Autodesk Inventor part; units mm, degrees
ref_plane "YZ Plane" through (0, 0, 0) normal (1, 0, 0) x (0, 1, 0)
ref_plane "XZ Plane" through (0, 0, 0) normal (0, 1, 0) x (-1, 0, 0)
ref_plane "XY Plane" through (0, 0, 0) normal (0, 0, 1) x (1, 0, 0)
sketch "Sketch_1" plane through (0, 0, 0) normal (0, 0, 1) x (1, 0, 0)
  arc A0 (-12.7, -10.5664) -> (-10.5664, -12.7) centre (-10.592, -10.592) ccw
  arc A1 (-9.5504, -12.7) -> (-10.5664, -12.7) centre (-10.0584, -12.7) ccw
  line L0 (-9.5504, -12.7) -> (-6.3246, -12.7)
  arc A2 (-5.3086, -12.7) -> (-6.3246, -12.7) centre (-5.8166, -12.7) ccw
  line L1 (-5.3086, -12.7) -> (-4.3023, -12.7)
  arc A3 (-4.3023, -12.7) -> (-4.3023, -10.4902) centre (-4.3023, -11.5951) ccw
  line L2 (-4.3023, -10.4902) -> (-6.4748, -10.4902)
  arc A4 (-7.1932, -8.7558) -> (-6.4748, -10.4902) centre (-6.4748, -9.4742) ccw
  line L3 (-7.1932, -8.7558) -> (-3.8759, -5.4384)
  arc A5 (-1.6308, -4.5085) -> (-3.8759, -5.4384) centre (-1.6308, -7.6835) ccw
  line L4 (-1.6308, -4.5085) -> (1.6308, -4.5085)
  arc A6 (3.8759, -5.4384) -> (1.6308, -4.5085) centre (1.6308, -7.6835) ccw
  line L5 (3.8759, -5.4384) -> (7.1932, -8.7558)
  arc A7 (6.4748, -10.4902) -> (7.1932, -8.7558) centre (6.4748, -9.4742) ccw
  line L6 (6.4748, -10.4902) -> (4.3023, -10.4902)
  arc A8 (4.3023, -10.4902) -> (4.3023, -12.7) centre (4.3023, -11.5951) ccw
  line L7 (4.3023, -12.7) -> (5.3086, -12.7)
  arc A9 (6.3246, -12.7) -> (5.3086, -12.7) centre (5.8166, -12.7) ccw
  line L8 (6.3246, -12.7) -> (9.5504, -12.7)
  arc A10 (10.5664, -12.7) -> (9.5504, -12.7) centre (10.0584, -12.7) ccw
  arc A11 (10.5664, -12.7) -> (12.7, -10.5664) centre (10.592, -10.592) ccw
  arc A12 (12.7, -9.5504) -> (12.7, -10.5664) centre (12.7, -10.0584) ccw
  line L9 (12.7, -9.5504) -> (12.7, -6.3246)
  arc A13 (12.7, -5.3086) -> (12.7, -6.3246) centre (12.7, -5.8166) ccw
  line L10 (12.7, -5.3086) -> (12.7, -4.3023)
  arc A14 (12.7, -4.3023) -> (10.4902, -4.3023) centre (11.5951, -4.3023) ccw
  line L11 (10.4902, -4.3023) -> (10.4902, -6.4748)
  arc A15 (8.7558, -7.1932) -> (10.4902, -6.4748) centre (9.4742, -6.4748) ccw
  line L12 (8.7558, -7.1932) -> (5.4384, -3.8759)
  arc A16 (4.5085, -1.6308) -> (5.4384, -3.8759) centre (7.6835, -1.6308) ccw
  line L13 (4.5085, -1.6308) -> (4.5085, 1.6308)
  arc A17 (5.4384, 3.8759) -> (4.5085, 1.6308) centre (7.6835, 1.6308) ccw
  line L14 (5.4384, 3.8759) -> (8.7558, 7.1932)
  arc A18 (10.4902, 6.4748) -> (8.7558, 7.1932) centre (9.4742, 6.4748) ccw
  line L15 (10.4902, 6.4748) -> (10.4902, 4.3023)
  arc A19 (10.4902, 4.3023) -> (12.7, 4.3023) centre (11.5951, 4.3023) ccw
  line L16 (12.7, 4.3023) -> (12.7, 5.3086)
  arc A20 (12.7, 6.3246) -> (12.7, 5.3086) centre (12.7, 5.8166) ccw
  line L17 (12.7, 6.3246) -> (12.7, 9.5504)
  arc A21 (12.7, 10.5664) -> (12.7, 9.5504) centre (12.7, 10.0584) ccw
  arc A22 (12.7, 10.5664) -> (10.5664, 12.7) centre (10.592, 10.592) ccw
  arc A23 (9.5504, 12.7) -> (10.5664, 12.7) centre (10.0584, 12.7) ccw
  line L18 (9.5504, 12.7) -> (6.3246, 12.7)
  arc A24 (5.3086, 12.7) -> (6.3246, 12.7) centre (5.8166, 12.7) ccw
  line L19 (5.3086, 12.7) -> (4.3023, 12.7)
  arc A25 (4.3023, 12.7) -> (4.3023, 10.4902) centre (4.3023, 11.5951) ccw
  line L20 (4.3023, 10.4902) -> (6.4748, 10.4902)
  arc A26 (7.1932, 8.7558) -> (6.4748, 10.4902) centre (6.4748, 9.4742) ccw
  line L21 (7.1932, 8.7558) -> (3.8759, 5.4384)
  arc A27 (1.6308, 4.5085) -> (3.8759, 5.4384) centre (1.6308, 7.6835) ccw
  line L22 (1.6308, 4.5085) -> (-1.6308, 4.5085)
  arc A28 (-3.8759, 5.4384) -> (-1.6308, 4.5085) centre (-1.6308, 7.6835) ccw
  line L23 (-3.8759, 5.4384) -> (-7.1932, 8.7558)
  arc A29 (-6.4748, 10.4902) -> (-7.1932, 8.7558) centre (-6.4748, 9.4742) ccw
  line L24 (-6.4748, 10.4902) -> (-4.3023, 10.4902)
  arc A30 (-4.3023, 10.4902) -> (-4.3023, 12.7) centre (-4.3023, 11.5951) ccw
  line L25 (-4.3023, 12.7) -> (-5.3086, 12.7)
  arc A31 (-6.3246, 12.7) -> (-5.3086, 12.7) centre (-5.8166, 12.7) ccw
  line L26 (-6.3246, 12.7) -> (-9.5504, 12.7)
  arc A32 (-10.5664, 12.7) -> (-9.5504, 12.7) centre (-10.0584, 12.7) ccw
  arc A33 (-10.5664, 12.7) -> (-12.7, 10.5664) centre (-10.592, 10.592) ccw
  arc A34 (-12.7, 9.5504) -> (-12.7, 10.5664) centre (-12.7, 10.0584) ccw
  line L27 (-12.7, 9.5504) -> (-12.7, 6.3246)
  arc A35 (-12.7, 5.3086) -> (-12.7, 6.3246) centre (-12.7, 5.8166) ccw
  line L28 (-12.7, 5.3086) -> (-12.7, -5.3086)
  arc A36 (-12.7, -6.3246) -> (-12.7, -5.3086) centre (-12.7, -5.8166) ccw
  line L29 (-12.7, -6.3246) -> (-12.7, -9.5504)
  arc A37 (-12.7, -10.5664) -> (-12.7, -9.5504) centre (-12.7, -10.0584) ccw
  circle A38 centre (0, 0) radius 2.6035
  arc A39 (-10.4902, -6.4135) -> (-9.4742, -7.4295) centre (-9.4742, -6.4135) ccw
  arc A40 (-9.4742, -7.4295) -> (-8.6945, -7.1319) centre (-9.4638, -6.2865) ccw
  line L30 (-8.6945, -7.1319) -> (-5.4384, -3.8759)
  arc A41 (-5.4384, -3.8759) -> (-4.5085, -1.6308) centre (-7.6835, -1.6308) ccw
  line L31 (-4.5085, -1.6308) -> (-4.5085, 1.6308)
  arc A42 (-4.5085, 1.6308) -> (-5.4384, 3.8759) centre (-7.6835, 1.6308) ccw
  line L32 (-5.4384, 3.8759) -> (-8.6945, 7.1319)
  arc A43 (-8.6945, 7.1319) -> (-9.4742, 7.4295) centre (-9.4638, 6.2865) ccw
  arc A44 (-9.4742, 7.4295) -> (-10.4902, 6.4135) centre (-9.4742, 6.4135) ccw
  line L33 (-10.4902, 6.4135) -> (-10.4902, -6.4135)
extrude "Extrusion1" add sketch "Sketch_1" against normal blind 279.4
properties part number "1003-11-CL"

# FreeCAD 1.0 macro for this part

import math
import FreeCAD as App
import Part
import Sketcher

V = App.Vector
Q = App.Units.Quantity

doc = App.newDocument("Part")
body = doc.addObject("PartDesign::Body", "Body")

# Sketch on XY plane
sketch1 = body.newObject("Sketcher::SketchObject", "Sketch")
sketch1.AttachmentSupport = (doc.getObject("XY_Plane"), [""])
sketch1.MapMode = "FlatFace"
sketch1.addGeometry([
    Part.ArcOfCircle(Part.Circle(V(-12.7, -10.1, 0), V(0, 0, 1), 0.5), math.radians(-90), math.radians(90)),  # 0
    Part.ArcOfCircle(Part.Circle(V(-10.6, -10.6, 0), V(0, 0, 1), 2.1), math.radians(179), math.radians(271)),  # 1
    Part.ArcOfCircle(Part.Circle(V(-10.1, -12.7, 0), V(0, 0, 1), 0.5), math.radians(0), math.radians(180)),  # 2
    Part.LineSegment(V(-9.6, -12.7, 0), V(-6.3, -12.7, 0)),  # 3
    Part.ArcOfCircle(Part.Circle(V(-5.8, -12.7, 0), V(0, 0, 1), 0.5), math.radians(0), math.radians(180)),  # 4
    Part.LineSegment(V(-5.3, -12.7, 0), V(-4.3, -12.7, 0)),  # 5
    Part.ArcOfCircle(Part.Circle(V(-4.3, -11.6, 0), V(0, 0, 1), 1.1), math.radians(-90), math.radians(90)),  # 6
    Part.LineSegment(V(-4.3, -10.5, 0), V(-6.5, -10.5, 0)),  # 7
    Part.ArcOfCircle(Part.Circle(V(-6.5, -9.5, 0), V(0, 0, 1), 1), math.radians(135), math.radians(270)),  # 8
    Part.LineSegment(V(-7.2, -8.8, 0), V(-3.9, -5.4, 0)),  # 9
    Part.ArcOfCircle(Part.Circle(V(-1.6, -7.7, 0), V(0, 0, 1), 3.2), math.radians(90), math.radians(135)),  # 10
    Part.LineSegment(V(-1.6, -4.5, 0), V(1.6, -4.5, 0)),  # 11
    Part.ArcOfCircle(Part.Circle(V(1.6, -7.7, 0), V(0, 0, 1), 3.2), math.radians(45), math.radians(90)),  # 12
    Part.LineSegment(V(3.9, -5.4, 0), V(7.2, -8.8, 0)),  # 13
    Part.ArcOfCircle(Part.Circle(V(6.5, -9.5, 0), V(0, 0, 1), 1), math.radians(-90), math.radians(45)),  # 14
    Part.LineSegment(V(6.5, -10.5, 0), V(4.3, -10.5, 0)),  # 15
    Part.ArcOfCircle(Part.Circle(V(4.3, -11.6, 0), V(0, 0, 1), 1.1), math.radians(90), math.radians(270)),  # 16
    Part.LineSegment(V(4.3, -12.7, 0), V(5.3, -12.7, 0)),  # 17
    Part.ArcOfCircle(Part.Circle(V(5.8, -12.7, 0), V(0, 0, 1), 0.5), math.radians(0), math.radians(180)),  # 18
    Part.LineSegment(V(6.3, -12.7, 0), V(9.6, -12.7, 0)),  # 19
    Part.ArcOfCircle(Part.Circle(V(10.1, -12.7, 0), V(0, 0, 1), 0.5), math.radians(0), math.radians(180)),  # 20
    Part.ArcOfCircle(Part.Circle(V(10.6, -10.6, 0), V(0, 0, 1), 2.1), math.radians(-91), math.radians(1)),  # 21
    Part.ArcOfCircle(Part.Circle(V(12.7, -10.1, 0), V(0, 0, 1), 0.5), math.radians(90), math.radians(270)),  # 22
    Part.LineSegment(V(12.7, -9.6, 0), V(12.7, -6.3, 0)),  # 23
    Part.ArcOfCircle(Part.Circle(V(12.7, -5.8, 0), V(0, 0, 1), 0.5), math.radians(90), math.radians(270)),  # 24
    Part.LineSegment(V(12.7, -5.3, 0), V(12.7, -4.3, 0)),  # 25
    Part.ArcOfCircle(Part.Circle(V(11.6, -4.3, 0), V(0, 0, 1), 1.1), math.radians(0), math.radians(180)),  # 26
    Part.LineSegment(V(10.5, -4.3, 0), V(10.5, -6.5, 0)),  # 27
    Part.ArcOfCircle(Part.Circle(V(9.5, -6.5, 0), V(0, 0, 1), 1), math.radians(-135), math.radians(0)),  # 28
    Part.LineSegment(V(8.8, -7.2, 0), V(5.4, -3.9, 0)),  # 29
    Part.ArcOfCircle(Part.Circle(V(7.7, -1.6, 0), V(0, 0, 1), 3.2), math.radians(180), math.radians(225)),  # 30
    Part.LineSegment(V(4.5, -1.6, 0), V(4.5, 1.6, 0)),  # 31
    Part.ArcOfCircle(Part.Circle(V(7.7, 1.6, 0), V(0, 0, 1), 3.2), math.radians(135), math.radians(180)),  # 32
    Part.LineSegment(V(5.4, 3.9, 0), V(8.8, 7.2, 0)),  # 33
    Part.ArcOfCircle(Part.Circle(V(9.5, 6.5, 0), V(0, 0, 1), 1), math.radians(0), math.radians(135)),  # 34
    Part.LineSegment(V(10.5, 6.5, 0), V(10.5, 4.3, 0)),  # 35
    Part.ArcOfCircle(Part.Circle(V(11.6, 4.3, 0), V(0, 0, 1), 1.1), math.radians(180), math.radians(360)),  # 36
    Part.LineSegment(V(12.7, 4.3, 0), V(12.7, 5.3, 0)),  # 37
    Part.ArcOfCircle(Part.Circle(V(12.7, 5.8, 0), V(0, 0, 1), 0.5), math.radians(90), math.radians(270)),  # 38
    Part.LineSegment(V(12.7, 6.3, 0), V(12.7, 9.6, 0)),  # 39
    Part.ArcOfCircle(Part.Circle(V(12.7, 10.1, 0), V(0, 0, 1), 0.5), math.radians(90), math.radians(270)),  # 40
    Part.ArcOfCircle(Part.Circle(V(10.6, 10.6, 0), V(0, 0, 1), 2.1), math.radians(-1), math.radians(91)),  # 41
    Part.ArcOfCircle(Part.Circle(V(10.1, 12.7, 0), V(0, 0, 1), 0.5), math.radians(180), math.radians(360)),  # 42
    Part.LineSegment(V(9.6, 12.7, 0), V(6.3, 12.7, 0)),  # 43
    Part.ArcOfCircle(Part.Circle(V(5.8, 12.7, 0), V(0, 0, 1), 0.5), math.radians(180), math.radians(360)),  # 44
    Part.LineSegment(V(5.3, 12.7, 0), V(4.3, 12.7, 0)),  # 45
    Part.ArcOfCircle(Part.Circle(V(4.3, 11.6, 0), V(0, 0, 1), 1.1), math.radians(90), math.radians(270)),  # 46
    Part.LineSegment(V(4.3, 10.5, 0), V(6.5, 10.5, 0)),  # 47
    Part.ArcOfCircle(Part.Circle(V(6.5, 9.5, 0), V(0, 0, 1), 1), math.radians(-45), math.radians(90)),  # 48
    Part.LineSegment(V(7.2, 8.8, 0), V(3.9, 5.4, 0)),  # 49
    Part.ArcOfCircle(Part.Circle(V(1.6, 7.7, 0), V(0, 0, 1), 3.2), math.radians(-90), math.radians(-45)),  # 50
    Part.LineSegment(V(1.6, 4.5, 0), V(-1.6, 4.5, 0)),  # 51
    Part.ArcOfCircle(Part.Circle(V(-1.6, 7.7, 0), V(0, 0, 1), 3.2), math.radians(-135), math.radians(-90)),  # 52
    Part.LineSegment(V(-3.9, 5.4, 0), V(-7.2, 8.8, 0)),  # 53
    Part.ArcOfCircle(Part.Circle(V(-6.5, 9.5, 0), V(0, 0, 1), 1), math.radians(90), math.radians(225)),  # 54
    Part.LineSegment(V(-6.5, 10.5, 0), V(-4.3, 10.5, 0)),  # 55
    Part.ArcOfCircle(Part.Circle(V(-4.3, 11.6, 0), V(0, 0, 1), 1.1), math.radians(-90), math.radians(90)),  # 56
    Part.LineSegment(V(-4.3, 12.7, 0), V(-5.3, 12.7, 0)),  # 57
    Part.ArcOfCircle(Part.Circle(V(-5.8, 12.7, 0), V(0, 0, 1), 0.5), math.radians(180), math.radians(360)),  # 58
    Part.LineSegment(V(-6.3, 12.7, 0), V(-9.6, 12.7, 0)),  # 59
    Part.ArcOfCircle(Part.Circle(V(-10.1, 12.7, 0), V(0, 0, 1), 0.5), math.radians(180), math.radians(360)),  # 60
    Part.ArcOfCircle(Part.Circle(V(-10.6, 10.6, 0), V(0, 0, 1), 2.1), math.radians(89), math.radians(181)),  # 61
    Part.ArcOfCircle(Part.Circle(V(-12.7, 10.1, 0), V(0, 0, 1), 0.5), math.radians(-90), math.radians(90)),  # 62
    Part.LineSegment(V(-12.7, 9.6, 0), V(-12.7, 6.3, 0)),  # 63
    Part.ArcOfCircle(Part.Circle(V(-12.7, 5.8, 0), V(0, 0, 1), 0.5), math.radians(-90), math.radians(90)),  # 64
    Part.LineSegment(V(-12.7, 5.3, 0), V(-12.7, -5.3, 0)),  # 65
    Part.ArcOfCircle(Part.Circle(V(-12.7, -5.8, 0), V(0, 0, 1), 0.5), math.radians(-90), math.radians(90)),  # 66
    Part.LineSegment(V(-12.7, -6.3, 0), V(-12.7, -9.6, 0)),  # 67
    Part.ArcOfCircle(Part.Circle(V(-9.5, -6.4, 0), V(0, 0, 1), 1), math.radians(180), math.radians(270)),  # 68
    Part.LineSegment(V(-10.5, -6.4, 0), V(-10.5, 6.4, 0)),  # 69
    Part.ArcOfCircle(Part.Circle(V(-9.5, 6.4, 0), V(0, 0, 1), 1), math.radians(90), math.radians(180)),  # 70
    Part.ArcOfCircle(Part.Circle(V(-9.5, 6.3, 0), V(0, 0, 1), 1.1), math.radians(48), math.radians(91)),  # 71
    Part.LineSegment(V(-8.7, 7.1, 0), V(-5.4, 3.9, 0)),  # 72
    Part.ArcOfCircle(Part.Circle(V(-7.7, 1.6, 0), V(0, 0, 1), 3.2), math.radians(0), math.radians(45)),  # 73
    Part.LineSegment(V(-4.5, 1.6, 0), V(-4.5, -1.6, 0)),  # 74
    Part.ArcOfCircle(Part.Circle(V(-7.7, -1.6, 0), V(0, 0, 1), 3.2), math.radians(-45), math.radians(0)),  # 75
    Part.LineSegment(V(-5.4, -3.9, 0), V(-8.7, -7.1, 0)),  # 76
    Part.ArcOfCircle(Part.Circle(V(-9.5, -6.3, 0), V(0, 0, 1), 1.1), math.radians(-91), math.radians(-48)),  # 77
    Part.Circle(V(0, 0, 0), V(0, 0, 1), 2.6),  # 78
], False)
sketch1.addConstraint([
    Sketcher.Constraint("Coincident", 0, 1, 1, 1),
    Sketcher.Constraint("Coincident", 1, 2, 2, 2),
    Sketcher.Constraint("Coincident", 2, 1, 3, 1),
    Sketcher.Constraint("Coincident", 3, 2, 4, 2),
    Sketcher.Constraint("Coincident", 4, 1, 5, 1),
    Sketcher.Constraint("Tangent", 5, 2, 6, 1),
    Sketcher.Constraint("Tangent", 6, 2, 7, 1),
    Sketcher.Constraint("Tangent", 7, 2, 8, 2),
    Sketcher.Constraint("Tangent", 8, 1, 9, 1),
    Sketcher.Constraint("Tangent", 9, 2, 10, 2),
    Sketcher.Constraint("Tangent", 10, 1, 11, 1),
    Sketcher.Constraint("Tangent", 11, 2, 12, 2),
    Sketcher.Constraint("Tangent", 12, 1, 13, 1),
    Sketcher.Constraint("Tangent", 13, 2, 14, 2),
    Sketcher.Constraint("Tangent", 14, 1, 15, 1),
    Sketcher.Constraint("Tangent", 15, 2, 16, 1),
    Sketcher.Constraint("Tangent", 16, 2, 17, 1),
    Sketcher.Constraint("Coincident", 17, 2, 18, 2),
    Sketcher.Constraint("Coincident", 18, 1, 19, 1),
    Sketcher.Constraint("Coincident", 19, 2, 20, 2),
    Sketcher.Constraint("Coincident", 20, 1, 21, 1),
    Sketcher.Constraint("Coincident", 21, 2, 22, 2),
    Sketcher.Constraint("Coincident", 22, 1, 23, 1),
    Sketcher.Constraint("Coincident", 23, 2, 24, 2),
    Sketcher.Constraint("Coincident", 24, 1, 25, 1),
    Sketcher.Constraint("Tangent", 25, 2, 26, 1),
    Sketcher.Constraint("Tangent", 26, 2, 27, 1),
    Sketcher.Constraint("Tangent", 27, 2, 28, 2),
    Sketcher.Constraint("Tangent", 28, 1, 29, 1),
    Sketcher.Constraint("Tangent", 29, 2, 30, 2),
    Sketcher.Constraint("Tangent", 30, 1, 31, 1),
    Sketcher.Constraint("Tangent", 31, 2, 32, 2),
    Sketcher.Constraint("Tangent", 32, 1, 33, 1),
    Sketcher.Constraint("Tangent", 33, 2, 34, 2),
    Sketcher.Constraint("Tangent", 34, 1, 35, 1),
    Sketcher.Constraint("Tangent", 35, 2, 36, 1),
    Sketcher.Constraint("Tangent", 36, 2, 37, 1),
    Sketcher.Constraint("Coincident", 37, 2, 38, 2),
    Sketcher.Constraint("Coincident", 38, 1, 39, 1),
    Sketcher.Constraint("Coincident", 39, 2, 40, 2),
    Sketcher.Constraint("Coincident", 40, 1, 41, 1),
    Sketcher.Constraint("Coincident", 41, 2, 42, 2),
    Sketcher.Constraint("Coincident", 42, 1, 43, 1),
    Sketcher.Constraint("Coincident", 43, 2, 44, 2),
    Sketcher.Constraint("Coincident", 44, 1, 45, 1),
    Sketcher.Constraint("Tangent", 45, 2, 46, 1),
    Sketcher.Constraint("Tangent", 46, 2, 47, 1),
    Sketcher.Constraint("Tangent", 47, 2, 48, 2),
    Sketcher.Constraint("Tangent", 48, 1, 49, 1),
    Sketcher.Constraint("Tangent", 49, 2, 50, 2),
    Sketcher.Constraint("Tangent", 50, 1, 51, 1),
    Sketcher.Constraint("Tangent", 51, 2, 52, 2),
    Sketcher.Constraint("Tangent", 52, 1, 53, 1),
    Sketcher.Constraint("Tangent", 53, 2, 54, 2),
    Sketcher.Constraint("Tangent", 54, 1, 55, 1),
    Sketcher.Constraint("Tangent", 55, 2, 56, 1),
    Sketcher.Constraint("Tangent", 56, 2, 57, 1),
    Sketcher.Constraint("Coincident", 57, 2, 58, 2),
    Sketcher.Constraint("Coincident", 58, 1, 59, 1),
    Sketcher.Constraint("Coincident", 59, 2, 60, 2),
    Sketcher.Constraint("Coincident", 60, 1, 61, 1),
    Sketcher.Constraint("Coincident", 61, 2, 62, 2),
    Sketcher.Constraint("Coincident", 62, 1, 63, 1),
    Sketcher.Constraint("Coincident", 63, 2, 64, 2),
    Sketcher.Constraint("Coincident", 64, 1, 65, 1),
    Sketcher.Constraint("Coincident", 65, 2, 66, 2),
    Sketcher.Constraint("Coincident", 66, 1, 67, 1),
    Sketcher.Constraint("Coincident", 67, 2, 0, 2),
    Sketcher.Constraint("Tangent", 68, 1, 69, 1),
    Sketcher.Constraint("Tangent", 69, 2, 70, 2),
    Sketcher.Constraint("Coincident", 70, 1, 71, 2),
    Sketcher.Constraint("Coincident", 71, 1, 72, 1),
    Sketcher.Constraint("Tangent", 72, 2, 73, 2),
    Sketcher.Constraint("Tangent", 73, 1, 74, 1),
    Sketcher.Constraint("Tangent", 74, 2, 75, 2),
    Sketcher.Constraint("Tangent", 75, 1, 76, 1),
    Sketcher.Constraint("Coincident", 76, 2, 77, 2),
    Sketcher.Constraint("Coincident", 77, 1, 68, 2),
    Sketcher.Constraint("Horizontal", 3),
    Sketcher.Constraint("Horizontal", 5),
    Sketcher.Constraint("Horizontal", 7),
    Sketcher.Constraint("Horizontal", 11),
    Sketcher.Constraint("Horizontal", 15),
    Sketcher.Constraint("Horizontal", 17),
    Sketcher.Constraint("Horizontal", 19),
    Sketcher.Constraint("Vertical", 23),
    Sketcher.Constraint("Vertical", 25),
    Sketcher.Constraint("Vertical", 27),
    Sketcher.Constraint("Vertical", 31),
    Sketcher.Constraint("Vertical", 35),
    Sketcher.Constraint("Vertical", 37),
    Sketcher.Constraint("Vertical", 39),
    Sketcher.Constraint("Horizontal", 43),
    Sketcher.Constraint("Horizontal", 45),
    Sketcher.Constraint("Horizontal", 47),
    Sketcher.Constraint("Horizontal", 51),
    Sketcher.Constraint("Horizontal", 55),
    Sketcher.Constraint("Horizontal", 57),
    Sketcher.Constraint("Horizontal", 59),
    Sketcher.Constraint("Vertical", 63),
    Sketcher.Constraint("Vertical", 65),
    Sketcher.Constraint("Vertical", 67),
    Sketcher.Constraint("Vertical", 69),
    Sketcher.Constraint("Vertical", 74),
    Sketcher.Constraint("Coincident", 78, 3, -1, 1),
    Sketcher.Constraint("Equal", 0, 2),
    Sketcher.Constraint("Equal", 2, 4),
    Sketcher.Constraint("Equal", 10, 12),
    Sketcher.Constraint("Equal", 8, 14),
    Sketcher.Constraint("Equal", 6, 16),
    Sketcher.Constraint("Equal", 4, 18),
    Sketcher.Constraint("Equal", 18, 20),
    Sketcher.Constraint("Equal", 1, 21),
    Sketcher.Constraint("Equal", 20, 22),
    Sketcher.Constraint("Equal", 22, 24),
    Sketcher.Constraint("Equal", 16, 26),
    Sketcher.Constraint("Equal", 14, 28),
    Sketcher.Constraint("Equal", 12, 30),
    Sketcher.Constraint("Equal", 30, 32),
    Sketcher.Constraint("Equal", 28, 34),
    Sketcher.Constraint("Equal", 26, 36),
    Sketcher.Constraint("Equal", 24, 38),
    Sketcher.Constraint("Equal", 38, 40),
    Sketcher.Constraint("Equal", 21, 41),
    Sketcher.Constraint("Equal", 40, 42),
    Sketcher.Constraint("Equal", 42, 44),
    Sketcher.Constraint("Equal", 36, 46),
    Sketcher.Constraint("Equal", 34, 48),
    Sketcher.Constraint("Equal", 32, 50),
    Sketcher.Constraint("Equal", 50, 52),
    Sketcher.Constraint("Equal", 48, 54),
    Sketcher.Constraint("Equal", 46, 56),
    Sketcher.Constraint("Equal", 44, 58),
    Sketcher.Constraint("Equal", 58, 60),
    Sketcher.Constraint("Equal", 41, 61),
    Sketcher.Constraint("Equal", 60, 62),
    Sketcher.Constraint("Equal", 62, 64),
    Sketcher.Constraint("Equal", 64, 66),
    Sketcher.Constraint("Equal", 54, 68),
    Sketcher.Constraint("Equal", 68, 70),
    Sketcher.Constraint("Equal", 52, 73),
    Sketcher.Constraint("Equal", 73, 75),
    Sketcher.Constraint("Equal", 71, 77),
    Sketcher.Constraint("Symmetric", 0, 3, 40, 3, -1, 1),
    Sketcher.Constraint("Symmetric", 1, 3, 41, 3, -1, 1),
    Sketcher.Constraint("Symmetric", 2, 3, 42, 3, -1, 1),
    Sketcher.Constraint("Symmetric", 4, 3, 44, 3, -1, 1),
    Sketcher.Constraint("Symmetric", 6, 3, 46, 3, -1, 1),
    Sketcher.Constraint("Symmetric", 10, 3, 50, 3, -1, 1),
    Sketcher.Constraint("Symmetric", 14, 3, 54, 3, -1, 1),
    Sketcher.Constraint("Symmetric", 18, 3, 58, 3, -1, 1),
    Sketcher.Constraint("Symmetric", 20, 3, 60, 3, -1, 1),
    Sketcher.Constraint("Symmetric", 21, 3, 61, 3, -1, 1),
    Sketcher.Constraint("Symmetric", 22, 3, 62, 3, -1, 1),
    Sketcher.Constraint("Symmetric", 24, 3, 64, 3, -1, 1),
    Sketcher.Constraint("Symmetric", 38, 3, 66, 3, -1, 1),
    Sketcher.Constraint("Symmetric", 30, 3, 73, 3, -1, 1),
    Sketcher.Constraint("Symmetric", 32, 1, 75, 1, -1, 1),
    Sketcher.Constraint("Symmetric", 8, 3, 14, 3, -2),
    Sketcher.Constraint("Symmetric", 4, 3, 18, 3, -2),
    Sketcher.Constraint("Symmetric", 2, 3, 20, 3, -2),
    Sketcher.Constraint("Symmetric", 1, 3, 21, 3, -2),
    Sketcher.Constraint("Symmetric", 0, 3, 22, 3, -2),
    Sketcher.Constraint("Symmetric", 38, 3, 64, 3, -2),
    Sketcher.Constraint("Symmetric", 49, 2, 52, 1, -2),
    Sketcher.Constraint("Symmetric", 32, 1, 72, 2, -2),
    Sketcher.Constraint("Symmetric", 28, 3, 34, 3, -1),
    Sketcher.Constraint("Symmetric", 71, 3, 77, 3, -1),
    Sketcher.Constraint("Perpendicular", 9, 13),
    Sketcher.Constraint("Parallel", 13, 29),
    Sketcher.Constraint("Perpendicular", 29, 33),
    Sketcher.Constraint("Horizontal", 2, 3, 4, 3),
    Sketcher.Constraint("Horizontal", 20, 3, 1, 2),
    Sketcher.Constraint("Horizontal", 1, 2, 2, 1),
    Sketcher.Constraint("Horizontal", 3, 2, 4, 1),
    Sketcher.Constraint("Horizontal", 17, 2, 18, 1),
    Sketcher.Constraint("Horizontal", 41, 2, 42, 1),
    Sketcher.Constraint("Horizontal", 57, 2, 58, 1),
    Sketcher.Constraint("Vertical", 22, 3, 24, 3),
    Sketcher.Constraint("Vertical", 16, 3, 46, 3),
    Sketcher.Constraint("Vertical", 6, 3, 56, 3),
    Sketcher.Constraint("Vertical", 66, 3, 0, 1),
    Sketcher.Constraint("Vertical", 21, 2, 22, 1),
    Sketcher.Constraint("Vertical", 23, 2, 24, 1),
    Sketcher.Constraint("Vertical", 37, 2, 38, 1),
    Sketcher.Constraint("Vertical", 61, 2, 62, 1),
    Sketcher.Constraint("Vertical", 63, 2, 64, 1),
    Sketcher.Constraint("Vertical", 65, 2, 66, 1),
    Sketcher.Constraint("Vertical", 68, 3, 70, 1),
    Sketcher.Constraint("Vertical", 70, 1, 77, 1),
    Sketcher.Constraint("Equal", 59, 23),
    Sketcher.Constraint("Equal", 57, 25),
    Sketcher.Constraint("Equal", 55, 27),
    Sketcher.Constraint("Equal", 51, 31),
    Sketcher.Constraint("Equal", 27, 35),
    Sketcher.Constraint("Equal", 13, 29),
    Sketcher.Constraint("Radius", 0, Q("0.02 in")),
    Sketcher.Constraint("Radius", 8, Q("0.04 in")),
    Sketcher.Constraint("Diameter", 78, Q("0.205 in")),
    Sketcher.Constraint("Radius", 1, Q("0.083 in")),
    Sketcher.Constraint("Radius", 10, Q("0.125 in")),
    Sketcher.Constraint("Radius", 71, Q("0.045 in")),
    Sketcher.Constraint("DistanceX", 0, 3, -1, 1, Q("0.5 in")),
    Sketcher.Constraint("DistanceY", 2, 3, -1, 1, Q("0.5 in")),
    Sketcher.Constraint("Radius", 6, Q("0.0435 in")),
    Sketcher.Constraint("DistanceX", 3, 1, 3, 2, Q("0.127 in")),
    Sketcher.Constraint("DistanceY", 65, 2, 65, 1, Q("0.418 in")),
    Sketcher.Constraint("DistanceY", 69, 1, 69, 2, Q("0.505 in")),
    Sketcher.Constraint("DistanceX", 11, 1, 11, 2, Q("0.1284 in")),
    Sketcher.Constraint("DistanceX", 68, 3, -1, 1, Q("0.373 in")),
    Sketcher.Constraint("Distance", 9, Q("0.1847 in")),
    Sketcher.Constraint("Distance", 72, Q("0.1813 in")),
    Sketcher.Constraint("DistanceX", 5, 1, 5, 2, 1.0063),
])
pad1 = body.newObject("PartDesign::Pad", "Pad")
pad1.Profile = sketch1
pad1.Length = Q("11 in")
pad1.Reversed = True

doc.recompute()
